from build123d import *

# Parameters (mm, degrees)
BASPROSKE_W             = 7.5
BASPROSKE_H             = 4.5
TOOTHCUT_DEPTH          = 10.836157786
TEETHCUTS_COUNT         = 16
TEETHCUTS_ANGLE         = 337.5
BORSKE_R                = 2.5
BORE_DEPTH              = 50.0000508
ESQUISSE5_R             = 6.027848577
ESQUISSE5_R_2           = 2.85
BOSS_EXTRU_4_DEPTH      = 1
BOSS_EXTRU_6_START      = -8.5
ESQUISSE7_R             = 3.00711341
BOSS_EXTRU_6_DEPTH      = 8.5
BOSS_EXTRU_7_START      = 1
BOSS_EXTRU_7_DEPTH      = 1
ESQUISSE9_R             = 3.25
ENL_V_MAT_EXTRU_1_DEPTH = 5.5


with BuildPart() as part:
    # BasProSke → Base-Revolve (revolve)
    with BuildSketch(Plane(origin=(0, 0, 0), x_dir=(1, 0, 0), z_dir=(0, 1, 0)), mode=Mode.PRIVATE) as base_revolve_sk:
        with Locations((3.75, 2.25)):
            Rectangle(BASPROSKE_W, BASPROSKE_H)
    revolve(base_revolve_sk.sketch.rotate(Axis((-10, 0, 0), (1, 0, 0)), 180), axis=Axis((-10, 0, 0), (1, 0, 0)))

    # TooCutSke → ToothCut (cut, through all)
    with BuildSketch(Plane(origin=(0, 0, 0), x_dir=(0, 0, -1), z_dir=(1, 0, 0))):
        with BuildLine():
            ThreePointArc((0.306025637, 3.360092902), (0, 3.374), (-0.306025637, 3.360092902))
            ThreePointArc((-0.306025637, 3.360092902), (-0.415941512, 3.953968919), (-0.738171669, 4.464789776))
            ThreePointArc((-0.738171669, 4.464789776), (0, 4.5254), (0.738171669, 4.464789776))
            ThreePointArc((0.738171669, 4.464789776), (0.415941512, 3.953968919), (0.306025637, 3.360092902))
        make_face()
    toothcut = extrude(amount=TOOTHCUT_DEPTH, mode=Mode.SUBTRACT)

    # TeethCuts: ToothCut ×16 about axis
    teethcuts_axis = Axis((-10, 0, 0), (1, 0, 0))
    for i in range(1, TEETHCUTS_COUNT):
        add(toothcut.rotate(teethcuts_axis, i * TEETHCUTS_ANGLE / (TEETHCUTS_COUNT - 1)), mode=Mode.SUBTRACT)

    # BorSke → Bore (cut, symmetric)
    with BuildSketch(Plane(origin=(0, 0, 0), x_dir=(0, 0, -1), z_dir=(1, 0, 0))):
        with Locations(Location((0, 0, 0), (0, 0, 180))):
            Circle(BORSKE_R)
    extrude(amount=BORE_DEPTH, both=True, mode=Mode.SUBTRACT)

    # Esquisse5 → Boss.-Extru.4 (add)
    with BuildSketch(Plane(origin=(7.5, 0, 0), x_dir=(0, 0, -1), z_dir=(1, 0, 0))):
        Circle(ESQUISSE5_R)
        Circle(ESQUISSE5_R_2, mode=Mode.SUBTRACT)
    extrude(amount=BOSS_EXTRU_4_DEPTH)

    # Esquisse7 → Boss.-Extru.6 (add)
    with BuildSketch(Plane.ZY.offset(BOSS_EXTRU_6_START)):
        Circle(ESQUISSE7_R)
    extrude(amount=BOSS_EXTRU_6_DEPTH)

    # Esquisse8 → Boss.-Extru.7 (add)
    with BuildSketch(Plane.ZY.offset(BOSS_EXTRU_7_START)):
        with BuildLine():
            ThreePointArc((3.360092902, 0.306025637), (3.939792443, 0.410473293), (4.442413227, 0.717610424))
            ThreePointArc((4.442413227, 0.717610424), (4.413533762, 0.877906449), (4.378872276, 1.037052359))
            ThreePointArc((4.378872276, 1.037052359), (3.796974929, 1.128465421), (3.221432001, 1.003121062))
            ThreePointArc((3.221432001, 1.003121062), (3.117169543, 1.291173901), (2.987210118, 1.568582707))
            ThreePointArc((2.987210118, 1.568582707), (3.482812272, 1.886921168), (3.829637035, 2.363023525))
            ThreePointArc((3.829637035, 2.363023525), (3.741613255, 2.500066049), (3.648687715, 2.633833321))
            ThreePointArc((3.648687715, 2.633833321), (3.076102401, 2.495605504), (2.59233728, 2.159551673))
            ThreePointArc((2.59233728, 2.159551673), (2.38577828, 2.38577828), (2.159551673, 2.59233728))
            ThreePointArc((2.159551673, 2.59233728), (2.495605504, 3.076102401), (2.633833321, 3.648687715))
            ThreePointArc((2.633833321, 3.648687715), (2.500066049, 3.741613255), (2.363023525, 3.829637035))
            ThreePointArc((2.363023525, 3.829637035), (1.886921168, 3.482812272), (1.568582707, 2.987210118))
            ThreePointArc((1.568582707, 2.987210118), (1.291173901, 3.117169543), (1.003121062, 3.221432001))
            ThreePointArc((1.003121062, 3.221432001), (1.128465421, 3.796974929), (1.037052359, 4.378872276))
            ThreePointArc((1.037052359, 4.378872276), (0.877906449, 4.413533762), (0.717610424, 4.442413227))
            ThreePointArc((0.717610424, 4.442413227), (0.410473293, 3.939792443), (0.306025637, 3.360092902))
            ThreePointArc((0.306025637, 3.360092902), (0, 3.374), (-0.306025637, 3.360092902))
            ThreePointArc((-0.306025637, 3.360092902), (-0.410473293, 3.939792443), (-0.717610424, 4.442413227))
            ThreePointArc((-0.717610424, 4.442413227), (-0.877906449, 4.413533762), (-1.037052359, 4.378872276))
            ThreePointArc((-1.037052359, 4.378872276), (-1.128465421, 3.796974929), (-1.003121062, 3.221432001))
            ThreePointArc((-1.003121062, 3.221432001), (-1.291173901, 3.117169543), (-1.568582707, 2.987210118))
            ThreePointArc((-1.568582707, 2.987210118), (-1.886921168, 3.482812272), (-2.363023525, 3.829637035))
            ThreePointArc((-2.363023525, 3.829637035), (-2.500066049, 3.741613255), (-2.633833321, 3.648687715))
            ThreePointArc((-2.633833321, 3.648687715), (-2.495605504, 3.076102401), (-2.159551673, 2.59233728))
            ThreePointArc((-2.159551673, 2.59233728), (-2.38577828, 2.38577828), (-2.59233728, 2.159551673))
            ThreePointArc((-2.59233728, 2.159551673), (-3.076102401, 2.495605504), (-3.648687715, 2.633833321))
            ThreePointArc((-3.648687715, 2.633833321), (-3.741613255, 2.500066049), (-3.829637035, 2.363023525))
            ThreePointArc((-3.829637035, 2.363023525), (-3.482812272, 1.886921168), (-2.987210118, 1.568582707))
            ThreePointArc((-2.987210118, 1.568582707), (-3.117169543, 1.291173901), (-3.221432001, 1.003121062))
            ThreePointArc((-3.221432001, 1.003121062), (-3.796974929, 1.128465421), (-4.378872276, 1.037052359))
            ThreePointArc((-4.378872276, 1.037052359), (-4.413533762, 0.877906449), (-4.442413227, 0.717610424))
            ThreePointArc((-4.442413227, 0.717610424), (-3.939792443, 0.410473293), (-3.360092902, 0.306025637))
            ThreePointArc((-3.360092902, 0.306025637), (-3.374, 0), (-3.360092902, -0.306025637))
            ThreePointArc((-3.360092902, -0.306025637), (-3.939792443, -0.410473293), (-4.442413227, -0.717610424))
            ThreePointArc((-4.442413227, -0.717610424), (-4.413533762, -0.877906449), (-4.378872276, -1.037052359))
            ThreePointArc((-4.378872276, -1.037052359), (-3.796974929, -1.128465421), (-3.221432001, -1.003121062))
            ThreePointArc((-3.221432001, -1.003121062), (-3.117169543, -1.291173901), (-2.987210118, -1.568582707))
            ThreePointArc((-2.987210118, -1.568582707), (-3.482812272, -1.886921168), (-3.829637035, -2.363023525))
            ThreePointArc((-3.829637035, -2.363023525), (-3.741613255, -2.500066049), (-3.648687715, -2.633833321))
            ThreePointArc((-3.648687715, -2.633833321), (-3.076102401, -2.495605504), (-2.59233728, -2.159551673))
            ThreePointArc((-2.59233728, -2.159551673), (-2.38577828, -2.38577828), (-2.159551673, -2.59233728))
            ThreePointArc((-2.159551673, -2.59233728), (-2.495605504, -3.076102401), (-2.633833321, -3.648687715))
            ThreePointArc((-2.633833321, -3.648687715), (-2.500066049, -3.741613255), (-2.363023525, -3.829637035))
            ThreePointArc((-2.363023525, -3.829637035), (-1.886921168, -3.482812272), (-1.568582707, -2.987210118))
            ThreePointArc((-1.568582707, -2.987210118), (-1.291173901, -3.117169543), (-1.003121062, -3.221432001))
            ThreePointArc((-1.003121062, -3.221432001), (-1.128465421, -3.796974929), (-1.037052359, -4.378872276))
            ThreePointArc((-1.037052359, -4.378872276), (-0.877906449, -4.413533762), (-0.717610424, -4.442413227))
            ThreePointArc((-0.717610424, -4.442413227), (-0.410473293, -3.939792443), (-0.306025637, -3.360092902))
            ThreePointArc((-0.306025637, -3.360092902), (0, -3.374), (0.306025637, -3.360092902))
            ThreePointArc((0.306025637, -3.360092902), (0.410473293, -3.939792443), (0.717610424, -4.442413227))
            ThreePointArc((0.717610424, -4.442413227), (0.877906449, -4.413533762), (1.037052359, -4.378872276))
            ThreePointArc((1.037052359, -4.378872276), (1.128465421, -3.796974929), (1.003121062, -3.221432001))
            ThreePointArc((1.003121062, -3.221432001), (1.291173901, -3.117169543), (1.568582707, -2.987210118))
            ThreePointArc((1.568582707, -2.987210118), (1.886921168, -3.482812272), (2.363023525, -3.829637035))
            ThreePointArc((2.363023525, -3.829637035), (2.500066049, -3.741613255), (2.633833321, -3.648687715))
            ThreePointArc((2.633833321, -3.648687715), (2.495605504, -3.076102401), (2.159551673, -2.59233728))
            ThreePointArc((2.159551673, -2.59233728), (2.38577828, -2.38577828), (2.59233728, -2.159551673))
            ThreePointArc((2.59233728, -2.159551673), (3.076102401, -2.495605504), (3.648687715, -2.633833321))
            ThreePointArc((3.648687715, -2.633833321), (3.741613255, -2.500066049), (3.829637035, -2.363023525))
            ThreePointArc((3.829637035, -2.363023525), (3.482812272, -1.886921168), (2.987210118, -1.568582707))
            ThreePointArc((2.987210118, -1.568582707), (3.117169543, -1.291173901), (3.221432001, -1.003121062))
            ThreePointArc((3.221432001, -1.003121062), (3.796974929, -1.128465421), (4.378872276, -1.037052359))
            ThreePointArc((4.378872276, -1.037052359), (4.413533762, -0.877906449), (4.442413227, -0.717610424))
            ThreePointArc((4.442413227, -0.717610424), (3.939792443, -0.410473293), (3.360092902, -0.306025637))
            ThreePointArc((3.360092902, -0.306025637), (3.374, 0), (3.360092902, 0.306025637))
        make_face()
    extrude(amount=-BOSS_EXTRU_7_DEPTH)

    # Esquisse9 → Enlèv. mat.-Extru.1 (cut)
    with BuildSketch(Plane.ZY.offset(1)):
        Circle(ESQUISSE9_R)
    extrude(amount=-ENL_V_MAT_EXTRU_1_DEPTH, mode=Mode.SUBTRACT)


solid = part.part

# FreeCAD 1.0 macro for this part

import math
import FreeCAD as App
import Part
import Sketcher
from FreeCAD import Vector
Q = App.Units.Quantity

doc = App.newDocument("Part")
body = doc.addObject("PartDesign::Body", "Body")

# Sketch on XZ plane
sketch1 = doc.addObject("Sketcher::SketchObject", "Sketch")
body.addObject(sketch1)
sketch1.AttachmentSupport = (doc.XZ_Plane, [""])
sketch1.MapMode = "FlatFace"
sketch1.addGeometry(Part.LineSegment(Vector(0, -4.5, 0), Vector(0, 0, 0)), False)
sketch1.addGeometry(Part.LineSegment(Vector(0, 0, 0), Vector(7.5, 0, 0)), False)
sketch1.addGeometry(Part.LineSegment(Vector(7.5, 0, 0), Vector(7.5, -4.5, 0)), False)
sketch1.addGeometry(Part.LineSegment(Vector(7.5, -4.5, 0), Vector(0, -4.5, 0)), False)
sketch1.addConstraint(Sketcher.Constraint("Coincident", 0, 2, 1, 1))
sketch1.addConstraint(Sketcher.Constraint("Coincident", 1, 2, 2, 1))
sketch1.addConstraint(Sketcher.Constraint("Coincident", 2, 2, 3, 1))
sketch1.addConstraint(Sketcher.Constraint("Coincident", 3, 2, 0, 1))
sketch1.addConstraint(Sketcher.Constraint("Vertical", 0))
sketch1.addConstraint(Sketcher.Constraint("Horizontal", 1))
sketch1.addConstraint(Sketcher.Constraint("Vertical", 2))
sketch1.addConstraint(Sketcher.Constraint("Horizontal", 3))
sketch1.addConstraint(Sketcher.Constraint("Coincident", 0, 2, -1, 1))
sketch1.addConstraint(Sketcher.Constraint("DistanceX", 1, 1, 1, 2, Q("7.5 mm")))
sketch1.addConstraint(Sketcher.Constraint("DistanceY", 0, 1, 0, 2, Q("4.5 mm")))
revolution = doc.addObject("PartDesign::Revolution", "Revolution")
body.addObject(revolution)
revolution.Profile = sketch1
revolution.ReferenceAxis = (sketch1, ["H_Axis"])
revolution.Angle = 360

# Sketch on YZ plane
sketch2 = doc.addObject("Sketcher::SketchObject", "Sketch001")
body.addObject(sketch2)
sketch2.AttachmentSupport = (doc.YZ_Plane, [""])
sketch2.MapMode = "FlatFace"
sketch2.addGeometry(Part.ArcOfCircle(Part.Circle(Vector(0, 0, 0), Vector(0, 0, 1), 3.374), math.radians(-5.203944), math.radians(5.203944)), False)
sketch2.addGeometry(Part.ArcOfCircle(Part.Circle(Vector(3.371078, -1.905988, 0), Vector(0, 0, 1), 1.6), math.radians(46.876767), math.radians(90.393382)), False)
sketch2.addGeometry(Part.ArcOfCircle(Part.Circle(Vector(0, 0, 0), Vector(0, 0, 1), 4.5254), math.radians(-9.38789), math.radians(9.38789)), False)
sketch2.addGeometry(Part.ArcOfCircle(Part.Circle(Vector(3.371078, 1.905988, 0), Vector(0, 0, 1), 1.6), math.radians(-90.393382), math.radians(-46.876767)), False)
sketch2.addConstraint(Sketcher.Constraint("Coincident", 0, 1, 1, 2))
sketch2.addConstraint(Sketcher.Constraint("Coincident", 1, 1, 2, 1))
sketch2.addConstraint(Sketcher.Constraint("Coincident", 2, 2, 3, 2))
sketch2.addConstraint(Sketcher.Constraint("Coincident", 3, 1, 0, 2))
sketch2.addConstraint(Sketcher.Constraint("Coincident", 0, 3, -1, 1))
sketch2.addConstraint(Sketcher.Constraint("Coincident", 2, 3, -1, 1))
sketch2.addConstraint(Sketcher.Constraint("Equal", 1, 3))
sketch2.addConstraint(Sketcher.Constraint("Symmetric", 1, 3, 3, 3, -1))
sketch2.addConstraint(Sketcher.Constraint("Radius", 1, Q("1.6 mm")))
sketch2.addConstraint(Sketcher.Constraint("Radius", 0, Q("3.374 mm")))
sketch2.addConstraint(Sketcher.Constraint("Radius", 2, Q("4.5254 mm")))
sketch2.addConstraint(Sketcher.Constraint("DistanceX", -1, 1, 1, 3, Q("3.371078 mm")))
sketch2.addConstraint(Sketcher.Constraint("DistanceX", -1, 1, 1, 1, Q("4.46479 mm")))
pocket1 = doc.addObject("PartDesign::Pocket", "Pocket")
body.addObject(pocket1)
pocket1.Profile = sketch2
pocket1.Type = "ThroughAll"
pocket1.Reversed = True
doc.recompute()

polarpattern = doc.addObject("PartDesign::PolarPattern", "PolarPattern")
body.addObject(polarpattern)
polarpattern.Originals = [pocket1]
polarpattern.Axis = (doc.X_Axis, [""])
polarpattern.Angle = 360
polarpattern.Occurrences = 16
body.Tip = polarpattern

# Sketch on YZ plane
sketch3 = doc.addObject("Sketcher::SketchObject", "Sketch002")
body.addObject(sketch3)
sketch3.AttachmentSupport = (doc.YZ_Plane, [""])
sketch3.MapMode = "FlatFace"
sketch3.addGeometry(Part.Circle(Vector(0, 0, 0), Vector(0, 0, 1), 2.5), False)
sketch3.addConstraint(Sketcher.Constraint("Coincident", 0, 3, -1, 1))
sketch3.addConstraint(Sketcher.Constraint("Diameter", 0, Q("5 mm")))
pocket2 = doc.addObject("PartDesign::Pocket", "Pocket001")
body.addObject(pocket2)
pocket2.Profile = sketch3
pocket2.Length = 100.000102
pocket2.Midplane = True

# Sketch on YZ plane
sketch4 = doc.addObject("Sketcher::SketchObject", "Sketch003")
body.addObject(sketch4)
sketch4.AttachmentSupport = (doc.YZ_Plane, [""])
sketch4.MapMode = "FlatFace"
sketch4.AttachmentOffset = App.Placement(Vector(0, 0, 7.5), App.Rotation())
sketch4.addGeometry(Part.Circle(Vector(0, 0, 0), Vector(0, 0, 1), 6.027849), False)
sketch4.addGeometry(Part.Circle(Vector(0, 0, 0), Vector(0, 0, 1), 2.85), False)
sketch4.addConstraint(Sketcher.Constraint("Coincident", 0, 3, -1, 1))
sketch4.addConstraint(Sketcher.Constraint("Coincident", 1, 3, -1, 1))
sketch4.addConstraint(Sketcher.Constraint("Diameter", 1, Q("5.7 mm")))
sketch4.addConstraint(Sketcher.Constraint("Diameter", 0, Q("12.055697 mm")))
pad1 = doc.addObject("PartDesign::Pad", "Pad")
body.addObject(pad1)
pad1.Profile = sketch4
pad1.Length = 1

# Sketch on YZ plane
sketch5 = doc.addObject("Sketcher::SketchObject", "Sketch004")
body.addObject(sketch5)
sketch5.AttachmentSupport = (doc.YZ_Plane, [""])
sketch5.MapMode = "FlatFace"
sketch5.AttachmentOffset = App.Placement(Vector(0, 0, 8.5), App.Rotation())
sketch5.addGeometry(Part.Circle(Vector(0, 0, 0), Vector(0, 0, 1), 3.007113), False)
sketch5.addConstraint(Sketcher.Constraint("Coincident", 0, 3, -1, 1))
sketch5.addConstraint(Sketcher.Constraint("Diameter", 0, Q("6.014227 mm")))
pad2 = doc.addObject("PartDesign::Pad", "Pad001")
body.addObject(pad2)
pad2.Profile = sketch5
pad2.Length = 8.5
pad2.Reversed = True

# Sketch on YZ plane
sketch6 = doc.addObject("Sketcher::SketchObject", "Sketch005")
body.addObject(sketch6)
sketch6.AttachmentSupport = (doc.YZ_Plane, [""])
sketch6.MapMode = "FlatFace"
sketch6.AttachmentOffset = App.Placement(Vector(0, 0, -1), App.Rotation())
sketch6.addGeometry(Part.ArcOfCircle(Part.Circle(Vector(1.905988, 3.371078, 0), Vector(0, 0, 1), 1.6), math.radians(137.965), math.radians(180.393382)), False)
sketch6.addGeometry(Part.ArcOfCircle(Part.Circle(Vector(0, 0, 0), Vector(0, 0, 1), 4.5), math.radians(76.676076), math.radians(80.823925)), False)
sketch6.addGeometry(Part.ArcOfCircle(Part.Circle(Vector(-0.470847, 3.84386, 0), Vector(0, 0, 1), 1.6), math.radians(-22.893382), math.radians(19.535)), False)
sketch6.addGeometry(Part.ArcOfCircle(Part.Circle(Vector(0, 0, 0), Vector(0, 0, 1), 3.374), math.radians(62.296056), math.radians(72.703944)), False)
sketch6.addGeometry(Part.ArcOfCircle(Part.Circle(Vector(3.050959, 2.38508, 0), Vector(0, 0, 1), 1.6), math.radians(115.465), math.radians(157.893382)), False)
sketch6.addGeometry(Part.ArcOfCircle(Part.Circle(Vector(0, 0, 0), Vector(0, 0, 1), 4.5), math.radians(54.176076), math.radians(58.323924)), False)
sketch6.addGeometry(Part.ArcOfCircle(Part.Circle(Vector(1.035975, 3.731449, 0), Vector(0, 0, 1), 1.6), math.radians(-45.393382), math.radians(-2.965)), False)
sketch6.addGeometry(Part.ArcOfCircle(Part.Circle(Vector(0, 0, 0), Vector(0, 0, 1), 3.374), math.radians(39.796056), math.radians(50.203944)), False)
sketch6.addGeometry(Part.ArcOfCircle(Part.Circle(Vector(3.731449, 1.035975, 0), Vector(0, 0, 1), 1.6), math.radians(92.965), math.radians(135.393382)), False)
sketch6.addGeometry(Part.ArcOfCircle(Part.Circle(Vector(0, 0, 0), Vector(0, 0, 1), 4.5), math.radians(31.676076), math.radians(35.823924)), False)
sketch6.addGeometry(Part.ArcOfCircle(Part.Circle(Vector(2.38508, 3.050959, 0), Vector(0, 0, 1), 1.6), math.radians(-67.893382), math.radians(-25.465)), False)
sketch6.addGeometry(Part.ArcOfCircle(Part.Circle(Vector(0, 0, 0), Vector(0, 0, 1), 3.374), math.radians(17.296056), math.radians(27.703944)), False)
sketch6.addGeometry(Part.ArcOfCircle(Part.Circle(Vector(3.84386, -0.470847, 0), Vector(0, 0, 1), 1.6), math.radians(70.465), math.radians(112.893382)), False)
sketch6.addGeometry(Part.ArcOfCircle(Part.Circle(Vector(0, 0, 0), Vector(0, 0, 1), 4.5), math.radians(9.176075), math.radians(13.323924)), False)
sketch6.addGeometry(Part.ArcOfCircle(Part.Circle(Vector(3.371078, 1.905988, 0), Vector(0, 0, 1), 1.6), math.radians(-90.393382), math.radians(-47.965)), False)
sketch6.addGeometry(Part.ArcOfCircle(Part.Circle(Vector(0, 0, 0), Vector(0, 0, 1), 3.374), math.radians(-5.203944), math.radians(5.203944)), False)
sketch6.addGeometry(Part.ArcOfCircle(Part.Circle(Vector(3.371078, -1.905988, 0), Vector(0, 0, 1), 1.6), math.radians(47.965), math.radians(90.393382)), False)
sketch6.addGeometry(Part.ArcOfCircle(Part.Circle(Vector(0, 0, 0), Vector(0, 0, 1), 4.5), math.radians(-13.323924), math.radians(-9.176075)), False)
sketch6.addGeometry(Part.ArcOfCircle(Part.Circle(Vector(3.84386, 0.470847, 0), Vector(0, 0, 1), 1.6), math.radians(-112.893382), math.radians(-70.465)), False)
sketch6.addGeometry(Part.ArcOfCircle(Part.Circle(Vector(0, 0, 0), Vector(0, 0, 1), 3.374), math.radians(-27.703944), math.radians(-17.296056)), False)
sketch6.addGeometry(Part.ArcOfCircle(Part.Circle(Vector(2.38508, -3.050959, 0), Vector(0, 0, 1), 1.6), math.radians(25.465), math.radians(67.893382)), False)
sketch6.addGeometry(Part.ArcOfCircle(Part.Circle(Vector(0, 0, 0), Vector(0, 0, 1), 4.5), math.radians(-35.823924), math.radians(-31.676076)), False)
sketch6.addGeometry(Part.ArcOfCircle(Part.Circle(Vector(3.731449, -1.035975, 0), Vector(0, 0, 1), 1.6), math.radians(-135.393382), math.radians(-92.965)), False)
sketch6.addGeometry(Part.ArcOfCircle(Part.Circle(Vector(0, 0, 0), Vector(0, 0, 1), 3.374), math.radians(-50.203944), math.radians(-39.796056)), False)
sketch6.addGeometry(Part.ArcOfCircle(Part.Circle(Vector(1.035975, -3.731449, 0), Vector(0, 0, 1), 1.6), math.radians(2.965), math.radians(45.393382)), False)
sketch6.addGeometry(Part.ArcOfCircle(Part.Circle(Vector(0, 0, 0), Vector(0, 0, 1), 4.5), math.radians(-58.323924), math.radians(-54.176076)), False)
sketch6.addGeometry(Part.ArcOfCircle(Part.Circle(Vector(3.050959, -2.38508, 0), Vector(0, 0, 1), 1.6), math.radians(-157.893382), math.radians(-115.465)), False)
sketch6.addGeometry(Part.ArcOfCircle(Part.Circle(Vector(0, 0, 0), Vector(0, 0, 1), 3.374), math.radians(-72.703944), math.radians(-62.296056)), False)
sketch6.addGeometry(Part.ArcOfCircle(Part.Circle(Vector(-0.470847, -3.84386, 0), Vector(0, 0, 1), 1.6), math.radians(-19.535), math.radians(22.893382)), False)
sketch6.addGeometry(Part.ArcOfCircle(Part.Circle(Vector(0, 0, 0), Vector(0, 0, 1), 4.5), math.radians(-80.823925), math.radians(-76.676076)), False)
sketch6.addGeometry(Part.ArcOfCircle(Part.Circle(Vector(1.905988, -3.371078, 0), Vector(0, 0, 1), 1.6), math.radians(179.606618), math.radians(222.035)), False)
sketch6.addGeometry(Part.ArcOfCircle(Part.Circle(Vector(0, 0, 0), Vector(0, 0, 1), 3.374), math.radians(-95.203944), math.radians(-84.796056)), False)
sketch6.addGeometry(Part.ArcOfCircle(Part.Circle(Vector(-1.905988, -3.371078, 0), Vector(0, 0, 1), 1.6), math.radians(-42.035), math.radians(0.393382)), False)
sketch6.addGeometry(Part.ArcOfCircle(Part.Circle(Vector(0, 0, 0), Vector(0, 0, 1), 4.5), math.radians(-103.323924), math.radians(-99.176075)), False)
sketch6.addGeometry(Part.ArcOfCircle(Part.Circle(Vector(0.470847, -3.84386, 0), Vector(0, 0, 1), 1.6), math.radians(157.106618), math.radians(199.535)), False)
sketch6.addGeometry(Part.ArcOfCircle(Part.Circle(Vector(0, 0, 0), Vector(0, 0, 1), 3.374), math.radians(-117.703944), math.radians(-107.296056)), False)
sketch6.addGeometry(Part.ArcOfCircle(Part.Circle(Vector(-3.050959, -2.38508, 0), Vector(0, 0, 1), 1.6), math.radians(-64.535), math.radians(-22.106618)), False)
sketch6.addGeometry(Part.ArcOfCircle(Part.Circle(Vector(0, 0, 0), Vector(0, 0, 1), 4.5), math.radians(-125.823924), math.radians(-121.676076)), False)
sketch6.addGeometry(Part.ArcOfCircle(Part.Circle(Vector(-1.035975, -3.731449, 0), Vector(0, 0, 1), 1.6), math.radians(134.606618), math.radians(177.035)), False)
sketch6.addGeometry(Part.ArcOfCircle(Part.Circle(Vector(0, 0, 0), Vector(0, 0, 1), 3.374), math.radians(-140.203944), math.radians(-129.796056)), False)
sketch6.addGeometry(Part.ArcOfCircle(Part.Circle(Vector(-3.731449, -1.035975, 0), Vector(0, 0, 1), 1.6), math.radians(-87.035), math.radians(-44.606618)), False)
sketch6.addGeometry(Part.ArcOfCircle(Part.Circle(Vector(0, 0, 0), Vector(0, 0, 1), 4.5), math.radians(-148.323924), math.radians(-144.176076)), False)
sketch6.addGeometry(Part.ArcOfCircle(Part.Circle(Vector(-2.38508, -3.050959, 0), Vector(0, 0, 1), 1.6), math.radians(112.106618), math.radians(154.535)), False)
sketch6.addGeometry(Part.ArcOfCircle(Part.Circle(Vector(0, 0, 0), Vector(0, 0, 1), 3.374), math.radians(-162.703944), math.radians(-152.296056)), False)
sketch6.addGeometry(Part.ArcOfCircle(Part.Circle(Vector(-3.84386, 0.470847, 0), Vector(0, 0, 1), 1.6), math.radians(-109.535), math.radians(-67.106618)), False)
sketch6.addGeometry(Part.ArcOfCircle(Part.Circle(Vector(0, 0, 0), Vector(0, 0, 1), 4.5), math.radians(-170.823925), math.radians(-166.676076)), False)
sketch6.addGeometry(Part.ArcOfCircle(Part.Circle(Vector(-3.371078, -1.905988, 0), Vector(0, 0, 1), 1.6), math.radians(89.606618), math.radians(132.035)), False)
sketch6.addGeometry(Part.ArcOfCircle(Part.Circle(Vector(0, 0, 0), Vector(0, 0, 1), 3.374), math.radians(174.796056), math.radians(185.203944)), False)
sketch6.addGeometry(Part.ArcOfCircle(Part.Circle(Vector(-3.371078, 1.905988, 0), Vector(0, 0, 1), 1.6), math.radians(-132.035), math.radians(-89.606618)), False)
sketch6.addGeometry(Part.ArcOfCircle(Part.Circle(Vector(0, 0, 0), Vector(0, 0, 1), 4.5), math.radians(166.676076), math.radians(170.823925)), False)
sketch6.addGeometry(Part.ArcOfCircle(Part.Circle(Vector(-3.84386, -0.470847, 0), Vector(0, 0, 1), 1.6), math.radians(67.106618), math.radians(109.535)), False)
sketch6.addGeometry(Part.ArcOfCircle(Part.Circle(Vector(0, 0, 0), Vector(0, 0, 1), 3.374), math.radians(152.296056), math.radians(162.703944)), False)
sketch6.addGeometry(Part.ArcOfCircle(Part.Circle(Vector(-2.38508, 3.050959, 0), Vector(0, 0, 1), 1.6), math.radians(-154.535), math.radians(-112.106618)), False)
sketch6.addGeometry(Part.ArcOfCircle(Part.Circle(Vector(0, 0, 0), Vector(0, 0, 1), 4.5), math.radians(144.176076), math.radians(148.323924)), False)
sketch6.addGeometry(Part.ArcOfCircle(Part.Circle(Vector(-3.731449, 1.035975, 0), Vector(0, 0, 1), 1.6), math.radians(44.606618), math.radians(87.035)), False)
sketch6.addGeometry(Part.ArcOfCircle(Part.Circle(Vector(0, 0, 0), Vector(0, 0, 1), 3.374), math.radians(129.796056), math.radians(140.203944)), False)
sketch6.addGeometry(Part.ArcOfCircle(Part.Circle(Vector(-1.035975, 3.731449, 0), Vector(0, 0, 1), 1.6), math.radians(-177.035), math.radians(-134.606618)), False)
sketch6.addGeometry(Part.ArcOfCircle(Part.Circle(Vector(0, 0, 0), Vector(0, 0, 1), 4.5), math.radians(121.676076), math.radians(125.823924)), False)
sketch6.addGeometry(Part.ArcOfCircle(Part.Circle(Vector(-3.050959, 2.38508, 0), Vector(0, 0, 1), 1.6), math.radians(22.106618), math.radians(64.535)), False)
sketch6.addGeometry(Part.ArcOfCircle(Part.Circle(Vector(0, 0, 0), Vector(0, 0, 1), 3.374), math.radians(107.296056), math.radians(117.703944)), False)
sketch6.addGeometry(Part.ArcOfCircle(Part.Circle(Vector(0.470847, 3.84386, 0), Vector(0, 0, 1), 1.6), math.radians(160.465), math.radians(202.893382)), False)
sketch6.addGeometry(Part.ArcOfCircle(Part.Circle(Vector(0, 0, 0), Vector(0, 0, 1), 4.5), math.radians(99.176075), math.radians(103.323924)), False)
sketch6.addGeometry(Part.ArcOfCircle(Part.Circle(Vector(-1.905988, 3.371078, 0), Vector(0, 0, 1), 1.6), math.radians(-0.393382), math.radians(42.035)), False)
sketch6.addGeometry(Part.ArcOfCircle(Part.Circle(Vector(0, 0, 0), Vector(0, 0, 1), 3.374), math.radians(84.796056), math.radians(95.203944)), False)
sketch6.addConstraint(Sketcher.Constraint("Coincident", 0, 1, 1, 2))
sketch6.addConstraint(Sketcher.Constraint("Coincident", 1, 1, 2, 2))
sketch6.addConstraint(Sketcher.Constraint("Coincident", 2, 1, 3, 2))
sketch6.addConstraint(Sketcher.Constraint("Coincident", 3, 1, 4, 2))
sketch6.addConstraint(Sketcher.Constraint("Coincident", 4, 1, 5, 2))
sketch6.addConstraint(Sketcher.Constraint("Coincident", 5, 1, 6, 2))
sketch6.addConstraint(Sketcher.Constraint("Coincident", 6, 1, 7, 2))
sketch6.addConstraint(Sketcher.Constraint("Coincident", 7, 1, 8, 2))
sketch6.addConstraint(Sketcher.Constraint("Coincident", 8, 1, 9, 2))
sketch6.addConstraint(Sketcher.Constraint("Coincident", 9, 1, 10, 2))
sketch6.addConstraint(Sketcher.Constraint("Coincident", 10, 1, 11, 2))
sketch6.addConstraint(Sketcher.Constraint("Coincident", 11, 1, 12, 2))
sketch6.addConstraint(Sketcher.Constraint("Coincident", 12, 1, 13, 2))
sketch6.addConstraint(Sketcher.Constraint("Coincident", 13, 1, 14, 2))
sketch6.addConstraint(Sketcher.Constraint("Coincident", 14, 1, 15, 2))
sketch6.addConstraint(Sketcher.Constraint("Coincident", 15, 1, 16, 2))
sketch6.addConstraint(Sketcher.Constraint("Coincident", 16, 1, 17, 2))
sketch6.addConstraint(Sketcher.Constraint("Coincident", 17, 1, 18, 2))
sketch6.addConstraint(Sketcher.Constraint("Coincident", 18, 1, 19, 2))
sketch6.addConstraint(Sketcher.Constraint("Coincident", 19, 1, 20, 2))
sketch6.addConstraint(Sketcher.Constraint("Coincident", 20, 1, 21, 2))
sketch6.addConstraint(Sketcher.Constraint("Coincident", 21, 1, 22, 2))
sketch6.addConstraint(Sketcher.Constraint("Coincident", 22, 1, 23, 2))
sketch6.addConstraint(Sketcher.Constraint("Coincident", 23, 1, 24, 2))
sketch6.addConstraint(Sketcher.Constraint("Coincident", 24, 1, 25, 2))
sketch6.addConstraint(Sketcher.Constraint("Coincident", 25, 1, 26, 2))
sketch6.addConstraint(Sketcher.Constraint("Coincident", 26, 1, 27, 2))
sketch6.addConstraint(Sketcher.Constraint("Coincident", 27, 1, 28, 2))
sketch6.addConstraint(Sketcher.Constraint("Coincident", 28, 1, 29, 2))
sketch6.addConstraint(Sketcher.Constraint("Coincident", 29, 1, 30, 2))
sketch6.addConstraint(Sketcher.Constraint("Coincident", 30, 1, 31, 2))
sketch6.addConstraint(Sketcher.Constraint("Coincident", 31, 1, 32, 2))
sketch6.addConstraint(Sketcher.Constraint("Coincident", 32, 1, 33, 2))
sketch6.addConstraint(Sketcher.Constraint("Coincident", 33, 1, 34, 2))
sketch6.addConstraint(Sketcher.Constraint("Coincident", 34, 1, 35, 2))
sketch6.addConstraint(Sketcher.Constraint("Coincident", 35, 1, 36, 2))
sketch6.addConstraint(Sketcher.Constraint("Coincident", 36, 1, 37, 2))
sketch6.addConstraint(Sketcher.Constraint("Coincident", 37, 1, 38, 2))
sketch6.addConstraint(Sketcher.Constraint("Coincident", 38, 1, 39, 2))
sketch6.addConstraint(Sketcher.Constraint("Coincident", 39, 1, 40, 2))
sketch6.addConstraint(Sketcher.Constraint("Coincident", 40, 1, 41, 2))
sketch6.addConstraint(Sketcher.Constraint("Coincident", 41, 1, 42, 2))
sketch6.addConstraint(Sketcher.Constraint("Coincident", 42, 1, 43, 2))
sketch6.addConstraint(Sketcher.Constraint("Coincident", 43, 1, 44, 2))
sketch6.addConstraint(Sketcher.Constraint("Coincident", 44, 1, 45, 2))
sketch6.addConstraint(Sketcher.Constraint("Coincident", 45, 1, 46, 2))
sketch6.addConstraint(Sketcher.Constraint("Coincident", 46, 1, 47, 2))
sketch6.addConstraint(Sketcher.Constraint("Coincident", 47, 1, 48, 2))
sketch6.addConstraint(Sketcher.Constraint("Coincident", 48, 1, 49, 2))
sketch6.addConstraint(Sketcher.Constraint("Coincident", 49, 1, 50, 2))
sketch6.addConstraint(Sketcher.Constraint("Coincident", 50, 1, 51, 2))
sketch6.addConstraint(Sketcher.Constraint("Coincident", 51, 1, 52, 2))
sketch6.addConstraint(Sketcher.Constraint("Coincident", 52, 1, 53, 2))
sketch6.addConstraint(Sketcher.Constraint("Coincident", 53, 1, 54, 2))
sketch6.addConstraint(Sketcher.Constraint("Coincident", 54, 1, 55, 2))
sketch6.addConstraint(Sketcher.Constraint("Coincident", 55, 1, 56, 2))
sketch6.addConstraint(Sketcher.Constraint("Coincident", 56, 1, 57, 2))
sketch6.addConstraint(Sketcher.Constraint("Coincident", 57, 1, 58, 2))
sketch6.addConstraint(Sketcher.Constraint("Coincident", 58, 1, 59, 2))
sketch6.addConstraint(Sketcher.Constraint("Coincident", 59, 1, 60, 2))
sketch6.addConstraint(Sketcher.Constraint("Coincident", 60, 1, 61, 2))
sketch6.addConstraint(Sketcher.Constraint("Coincident", 61, 1, 62, 2))
sketch6.addConstraint(Sketcher.Constraint("Coincident", 62, 1, 63, 2))
sketch6.addConstraint(Sketcher.Constraint("Coincident", 63, 1, 0, 2))
sketch6.addConstraint(Sketcher.Constraint("Coincident", 1, 3, -1, 1))
sketch6.addConstraint(Sketcher.Constraint("Coincident", 3, 3, -1, 1))
sketch6.addConstraint(Sketcher.Constraint("Coincident", 5, 3, -1, 1))
sketch6.addConstraint(Sketcher.Constraint("Coincident", 7, 3, -1, 1))
sketch6.addConstraint(Sketcher.Constraint("Coincident", 9, 3, -1, 1))
sketch6.addConstraint(Sketcher.Constraint("Coincident", 11, 3, -1, 1))
sketch6.addConstraint(Sketcher.Constraint("Coincident", 13, 3, -1, 1))
sketch6.addConstraint(Sketcher.Constraint("Coincident", 15, 3, -1, 1))
sketch6.addConstraint(Sketcher.Constraint("Coincident", 17, 3, -1, 1))
sketch6.addConstraint(Sketcher.Constraint("Coincident", 19, 3, -1, 1))
sketch6.addConstraint(Sketcher.Constraint("Coincident", 21, 3, -1, 1))
sketch6.addConstraint(Sketcher.Constraint("Coincident", 23, 3, -1, 1))
sketch6.addConstraint(Sketcher.Constraint("Coincident", 25, 3, -1, 1))
sketch6.addConstraint(Sketcher.Constraint("Coincident", 27, 3, -1, 1))
sketch6.addConstraint(Sketcher.Constraint("Coincident", 29, 3, -1, 1))
sketch6.addConstraint(Sketcher.Constraint("Coincident", 31, 3, -1, 1))
sketch6.addConstraint(Sketcher.Constraint("Coincident", 33, 3, -1, 1))
sketch6.addConstraint(Sketcher.Constraint("Coincident", 35, 3, -1, 1))
sketch6.addConstraint(Sketcher.Constraint("Coincident", 37, 3, -1, 1))
sketch6.addConstraint(Sketcher.Constraint("Coincident", 39, 3, -1, 1))
sketch6.addConstraint(Sketcher.Constraint("Coincident", 41, 3, -1, 1))
sketch6.addConstraint(Sketcher.Constraint("Coincident", 43, 3, -1, 1))
sketch6.addConstraint(Sketcher.Constraint("Coincident", 45, 3, -1, 1))
sketch6.addConstraint(Sketcher.Constraint("Coincident", 47, 3, -1, 1))
sketch6.addConstraint(Sketcher.Constraint("Coincident", 49, 3, -1, 1))
sketch6.addConstraint(Sketcher.Constraint("Coincident", 51, 3, -1, 1))
sketch6.addConstraint(Sketcher.Constraint("Coincident", 53, 3, -1, 1))
sketch6.addConstraint(Sketcher.Constraint("Coincident", 55, 3, -1, 1))
sketch6.addConstraint(Sketcher.Constraint("Coincident", 57, 3, -1, 1))
sketch6.addConstraint(Sketcher.Constraint("Coincident", 59, 3, -1, 1))
sketch6.addConstraint(Sketcher.Constraint("Coincident", 61, 3, -1, 1))
sketch6.addConstraint(Sketcher.Constraint("Coincident", 63, 3, -1, 1))
sketch6.addConstraint(Sketcher.Constraint("Equal", 0, 2))
sketch6.addConstraint(Sketcher.Constraint("Equal", 2, 4))
sketch6.addConstraint(Sketcher.Constraint("Equal", 1, 5))
sketch6.addConstraint(Sketcher.Constraint("Equal", 4, 6))
sketch6.addConstraint(Sketcher.Constraint("Equal", 3, 7))
sketch6.addConstraint(Sketcher.Constraint("Equal", 6, 8))
sketch6.addConstraint(Sketcher.Constraint("Equal", 5, 9))
sketch6.addConstraint(Sketcher.Constraint("Equal", 8, 10))
sketch6.addConstraint(Sketcher.Constraint("Equal", 7, 11))
sketch6.addConstraint(Sketcher.Constraint("Equal", 10, 12))
sketch6.addConstraint(Sketcher.Constraint("Equal", 9, 13))
sketch6.addConstraint(Sketcher.Constraint("Equal", 12, 14))
sketch6.addConstraint(Sketcher.Constraint("Equal", 11, 15))
sketch6.addConstraint(Sketcher.Constraint("Equal", 14, 16))
sketch6.addConstraint(Sketcher.Constraint("Equal", 13, 17))
sketch6.addConstraint(Sketcher.Constraint("Equal", 16, 18))
sketch6.addConstraint(Sketcher.Constraint("Equal", 15, 19))
sketch6.addConstraint(Sketcher.Constraint("Equal", 18, 20))
sketch6.addConstraint(Sketcher.Constraint("Equal", 17, 21))
sketch6.addConstraint(Sketcher.Constraint("Equal", 20, 22))
sketch6.addConstraint(Sketcher.Constraint("Equal", 19, 23))
sketch6.addConstraint(Sketcher.Constraint("Equal", 22, 24))
sketch6.addConstraint(Sketcher.Constraint("Equal", 21, 25))
sketch6.addConstraint(Sketcher.Constraint("Equal", 24, 26))
sketch6.addConstraint(Sketcher.Constraint("Equal", 23, 27))
sketch6.addConstraint(Sketcher.Constraint("Equal", 26, 28))
sketch6.addConstraint(Sketcher.Constraint("Equal", 25, 29))
sketch6.addConstraint(Sketcher.Constraint("Equal", 28, 30))
sketch6.addConstraint(Sketcher.Constraint("Equal", 27, 31))
sketch6.addConstraint(Sketcher.Constraint("Equal", 30, 32))
sketch6.addConstraint(Sketcher.Constraint("Equal", 29, 33))
sketch6.addConstraint(Sketcher.Constraint("Equal", 32, 34))
sketch6.addConstraint(Sketcher.Constraint("Equal", 31, 35))
sketch6.addConstraint(Sketcher.Constraint("Equal", 34, 36))
sketch6.addConstraint(Sketcher.Constraint("Equal", 33, 37))
sketch6.addConstraint(Sketcher.Constraint("Equal", 36, 38))
sketch6.addConstraint(Sketcher.Constraint("Equal", 35, 39))
sketch6.addConstraint(Sketcher.Constraint("Equal", 38, 40))
sketch6.addConstraint(Sketcher.Constraint("Equal", 37, 41))
sketch6.addConstraint(Sketcher.Constraint("Equal", 40, 42))
sketch6.addConstraint(Sketcher.Constraint("Equal", 39, 43))
sketch6.addConstraint(Sketcher.Constraint("Equal", 42, 44))
sketch6.addConstraint(Sketcher.Constraint("Equal", 41, 45))
sketch6.addConstraint(Sketcher.Constraint("Equal", 44, 46))
sketch6.addConstraint(Sketcher.Constraint("Equal", 43, 47))
sketch6.addConstraint(Sketcher.Constraint("Equal", 46, 48))
sketch6.addConstraint(Sketcher.Constraint("Equal", 45, 49))
sketch6.addConstraint(Sketcher.Constraint("Equal", 48, 50))
sketch6.addConstraint(Sketcher.Constraint("Equal", 47, 51))
sketch6.addConstraint(Sketcher.Constraint("Equal", 50, 52))
sketch6.addConstraint(Sketcher.Constraint("Equal", 49, 53))
sketch6.addConstraint(Sketcher.Constraint("Equal", 52, 54))
sketch6.addConstraint(Sketcher.Constraint("Equal", 51, 55))
sketch6.addConstraint(Sketcher.Constraint("Equal", 54, 56))
sketch6.addConstraint(Sketcher.Constraint("Equal", 53, 57))
sketch6.addConstraint(Sketcher.Constraint("Equal", 56, 58))
sketch6.addConstraint(Sketcher.Constraint("Equal", 55, 59))
sketch6.addConstraint(Sketcher.Constraint("Equal", 58, 60))
sketch6.addConstraint(Sketcher.Constraint("Equal", 57, 61))
sketch6.addConstraint(Sketcher.Constraint("Equal", 60, 62))
sketch6.addConstraint(Sketcher.Constraint("Equal", 59, 63))
sketch6.addConstraint(Sketcher.Constraint("Symmetric", 0, 3, 32, 3, -1, 1))
sketch6.addConstraint(Sketcher.Constraint("Symmetric", 2, 3, 34, 3, -1, 1))
sketch6.addConstraint(Sketcher.Constraint("Symmetric", 4, 3, 36, 3, -1, 1))
sketch6.addConstraint(Sketcher.Constraint("Symmetric", 6, 3, 38, 3, -1, 1))
sketch6.addConstraint(Sketcher.Constraint("Symmetric", 8, 3, 40, 3, -1, 1))
sketch6.addConstraint(Sketcher.Constraint("Symmetric", 10, 3, 42, 3, -1, 1))
sketch6.addConstraint(Sketcher.Constraint("Symmetric", 12, 3, 44, 3, -1, 1))
sketch6.addConstraint(Sketcher.Constraint("Symmetric", 14, 3, 46, 3, -1, 1))
sketch6.addConstraint(Sketcher.Constraint("Symmetric", 16, 3, 48, 3, -1, 1))
sketch6.addConstraint(Sketcher.Constraint("Symmetric", 18, 3, 50, 3, -1, 1))
sketch6.addConstraint(Sketcher.Constraint("Symmetric", 20, 3, 52, 3, -1, 1))
sketch6.addConstraint(Sketcher.Constraint("Symmetric", 22, 3, 54, 3, -1, 1))
sketch6.addConstraint(Sketcher.Constraint("Symmetric", 24, 3, 56, 3, -1, 1))
sketch6.addConstraint(Sketcher.Constraint("Symmetric", 26, 3, 58, 3, -1, 1))
sketch6.addConstraint(Sketcher.Constraint("Symmetric", 28, 3, 60, 3, -1, 1))
sketch6.addConstraint(Sketcher.Constraint("Symmetric", 30, 3, 62, 3, -1, 1))
sketch6.addConstraint(Sketcher.Constraint("Symmetric", 30, 3, 32, 3, -2))
sketch6.addConstraint(Sketcher.Constraint("Symmetric", 28, 3, 34, 3, -2))
sketch6.addConstraint(Sketcher.Constraint("Symmetric", 26, 3, 36, 3, -2))
sketch6.addConstraint(Sketcher.Constraint("Symmetric", 24, 3, 38, 3, -2))
sketch6.addConstraint(Sketcher.Constraint("Symmetric", 22, 3, 40, 3, -2))
sketch6.addConstraint(Sketcher.Constraint("Symmetric", 20, 3, 42, 3, -2))
sketch6.addConstraint(Sketcher.Constraint("Symmetric", 18, 3, 44, 3, -2))
sketch6.addConstraint(Sketcher.Constraint("Symmetric", 16, 3, 46, 3, -2))
sketch6.addConstraint(Sketcher.Constraint("Radius", 0, Q("1.6 mm")))
sketch6.addConstraint(Sketcher.Constraint("Radius", 1, Q("4.5 mm")))
sketch6.addConstraint(Sketcher.Constraint("Radius", 3, Q("3.374 mm")))
sketch6.addConstraint(Sketcher.Constraint("DistanceY", -1, 1, 0, 3, Q("3.371078 mm")))
sketch6.addConstraint(Sketcher.Constraint("DistanceY", -1, 1, 2, 3, Q("3.84386 mm")))
sketch6.addConstraint(Sketcher.Constraint("DistanceX", -1, 1, 4, 3, Q("3.050959 mm")))
sketch6.addConstraint(Sketcher.Constraint("DistanceY", -1, 1, 4, 3, Q("2.38508 mm")))
sketch6.addConstraint(Sketcher.Constraint("DistanceY", -1, 1, 6, 3, Q("3.731449 mm")))
sketch6.addConstraint(Sketcher.Constraint("DistanceX", -1, 1, 8, 3, Q("3.731449 mm")))
sketch6.addConstraint(Sketcher.Constraint("DistanceX", -1, 1, 10, 3, Q("2.38508 mm")))
sketch6.addConstraint(Sketcher.Constraint("DistanceY", -1, 1, 10, 3, Q("3.050959 mm")))
sketch6.addConstraint(Sketcher.Constraint("DistanceX", -1, 1, 12, 3, Q("3.84386 mm")))
sketch6.addConstraint(Sketcher.Constraint("DistanceX", -1, 1, 14, 3, Q("3.371078 mm")))
sketch6.addConstraint(Sketcher.Constraint("DistanceX", -1, 1, 0, 1, Q("0.71761 mm")))
sketch6.addConstraint(Sketcher.Constraint("DistanceX", -1, 1, 2, 1, Q("1.003121 mm")))
sketch6.addConstraint(Sketcher.Constraint("DistanceX", -1, 1, 6, 1, Q("2.159552 mm")))
sketch6.addConstraint(Sketcher.Constraint("DistanceY", -1, 1, 7, 1, Q("2.159552 mm")))
sketch6.addConstraint(Sketcher.Constraint("DistanceY", -1, 1, 11, 1, Q("1.003121 mm")))
sketch6.addConstraint(Sketcher.Constraint("DistanceY", -1, 1, 13, 1, Q("0.71761 mm")))
pad3 = doc.addObject("PartDesign::Pad", "Pad002")
body.addObject(pad3)
pad3.Profile = sketch6
pad3.Length = 1

# Sketch on YZ plane
sketch7 = doc.addObject("Sketcher::SketchObject", "Sketch006")
body.addObject(sketch7)
sketch7.AttachmentSupport = (doc.YZ_Plane, [""])
sketch7.MapMode = "FlatFace"
sketch7.AttachmentOffset = App.Placement(Vector(0, 0, -1), App.Rotation())
sketch7.addGeometry(Part.Circle(Vector(0, 0, 0), Vector(0, 0, 1), 3.25), False)
sketch7.addConstraint(Sketcher.Constraint("Coincident", 0, 3, -1, 1))
sketch7.addConstraint(Sketcher.Constraint("Diameter", 0, Q("6.5 mm")))
pocket3 = doc.addObject("PartDesign::Pocket", "Pocket002")
body.addObject(pocket3)
pocket3.Profile = sketch7
pocket3.Length = 5.5
pocket3.Reversed = True

doc.recompute()
